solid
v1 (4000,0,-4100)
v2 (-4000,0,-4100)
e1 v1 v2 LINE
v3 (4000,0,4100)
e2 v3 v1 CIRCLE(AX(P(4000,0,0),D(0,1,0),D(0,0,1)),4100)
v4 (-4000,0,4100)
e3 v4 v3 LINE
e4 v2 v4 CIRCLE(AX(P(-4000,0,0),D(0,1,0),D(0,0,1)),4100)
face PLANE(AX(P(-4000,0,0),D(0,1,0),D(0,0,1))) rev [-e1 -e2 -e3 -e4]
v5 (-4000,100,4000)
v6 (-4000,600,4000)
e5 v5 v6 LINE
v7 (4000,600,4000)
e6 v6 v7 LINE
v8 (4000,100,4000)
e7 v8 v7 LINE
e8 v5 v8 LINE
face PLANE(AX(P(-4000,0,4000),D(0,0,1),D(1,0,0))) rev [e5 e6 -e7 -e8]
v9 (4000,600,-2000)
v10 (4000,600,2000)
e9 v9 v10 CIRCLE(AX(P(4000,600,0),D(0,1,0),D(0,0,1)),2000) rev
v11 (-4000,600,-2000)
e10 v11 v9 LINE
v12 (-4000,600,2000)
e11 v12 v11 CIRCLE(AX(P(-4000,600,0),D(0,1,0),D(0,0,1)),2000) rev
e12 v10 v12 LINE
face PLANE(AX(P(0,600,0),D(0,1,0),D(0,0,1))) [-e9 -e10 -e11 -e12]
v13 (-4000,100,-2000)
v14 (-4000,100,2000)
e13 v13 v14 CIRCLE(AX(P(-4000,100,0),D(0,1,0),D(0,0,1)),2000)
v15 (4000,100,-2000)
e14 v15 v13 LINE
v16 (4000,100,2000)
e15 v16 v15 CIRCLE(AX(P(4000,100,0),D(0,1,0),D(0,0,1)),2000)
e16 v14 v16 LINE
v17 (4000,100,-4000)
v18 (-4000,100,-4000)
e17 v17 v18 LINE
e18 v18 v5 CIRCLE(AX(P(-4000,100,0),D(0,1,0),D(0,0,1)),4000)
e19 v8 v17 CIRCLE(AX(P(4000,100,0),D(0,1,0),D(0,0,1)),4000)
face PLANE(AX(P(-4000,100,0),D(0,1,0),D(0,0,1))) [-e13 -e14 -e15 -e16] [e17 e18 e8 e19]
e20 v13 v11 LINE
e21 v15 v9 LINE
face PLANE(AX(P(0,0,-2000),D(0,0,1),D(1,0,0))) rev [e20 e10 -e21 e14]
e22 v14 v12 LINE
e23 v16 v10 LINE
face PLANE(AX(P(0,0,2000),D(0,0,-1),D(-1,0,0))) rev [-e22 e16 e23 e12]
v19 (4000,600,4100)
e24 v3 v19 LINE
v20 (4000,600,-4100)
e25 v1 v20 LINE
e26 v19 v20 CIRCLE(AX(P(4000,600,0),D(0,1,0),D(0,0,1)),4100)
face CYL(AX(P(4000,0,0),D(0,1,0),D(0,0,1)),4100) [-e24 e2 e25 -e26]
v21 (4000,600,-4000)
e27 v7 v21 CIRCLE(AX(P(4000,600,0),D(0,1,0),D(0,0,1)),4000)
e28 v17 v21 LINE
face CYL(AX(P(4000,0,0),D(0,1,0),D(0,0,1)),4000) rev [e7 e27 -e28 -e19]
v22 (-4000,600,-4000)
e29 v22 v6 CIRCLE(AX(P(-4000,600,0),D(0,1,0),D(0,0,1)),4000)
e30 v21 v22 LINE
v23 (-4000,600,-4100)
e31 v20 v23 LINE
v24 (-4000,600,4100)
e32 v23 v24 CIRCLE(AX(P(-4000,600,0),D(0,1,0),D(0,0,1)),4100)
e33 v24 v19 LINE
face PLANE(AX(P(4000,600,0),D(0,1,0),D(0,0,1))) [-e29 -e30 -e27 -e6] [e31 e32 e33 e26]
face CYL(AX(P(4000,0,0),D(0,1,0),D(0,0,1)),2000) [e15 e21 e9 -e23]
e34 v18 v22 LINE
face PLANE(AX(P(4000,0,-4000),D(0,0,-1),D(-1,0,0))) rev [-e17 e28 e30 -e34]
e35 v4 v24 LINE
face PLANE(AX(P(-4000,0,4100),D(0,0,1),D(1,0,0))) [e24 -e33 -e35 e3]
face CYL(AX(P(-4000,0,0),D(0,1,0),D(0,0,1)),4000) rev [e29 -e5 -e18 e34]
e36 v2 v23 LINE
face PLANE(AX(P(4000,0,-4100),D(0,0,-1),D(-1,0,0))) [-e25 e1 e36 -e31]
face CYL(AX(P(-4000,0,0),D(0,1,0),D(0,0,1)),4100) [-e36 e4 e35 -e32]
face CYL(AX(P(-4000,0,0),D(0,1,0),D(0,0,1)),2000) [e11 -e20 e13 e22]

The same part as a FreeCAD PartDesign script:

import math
import FreeCAD as App
import Part
import Sketcher

V = App.Vector
Q = App.Units.Quantity

doc = App.newDocument("Part")
body = doc.addObject("PartDesign::Body", "Body")

# Sketch on XZ plane
sketch1 = body.newObject("Sketcher::SketchObject", "Sketch")
sketch1.AttachmentSupport = (doc.getObject("XZ_Plane"), [""])
sketch1.MapMode = "FlatFace"
sketch1.addGeometry([
    Part.LineSegment(V(-4000, 4000, 0), V(4000, 4000, 0)),  # 0
    Part.ArcOfCircle(Part.Circle(V(4000, 0, 0), V(0, 0, 1), 4000), math.radians(-90), math.radians(90)),  # 1
    Part.LineSegment(V(4000, -4000, 0), V(-4000, -4000, 0)),  # 2
    Part.ArcOfCircle(Part.Circle(V(-4000, 0, 0), V(0, 0, 1), 4000), math.radians(90), math.radians(270)),  # 3
    Part.ArcOfCircle(Part.Circle(V(-4000, 0, 0), V(0, 0, 1), 2000), math.radians(90), math.radians(270)),  # 4
    Part.LineSegment(V(-4000, -2000, 0), V(4000, -2000, 0)),  # 5
    Part.ArcOfCircle(Part.Circle(V(4000, 0, 0), V(0, 0, 1), 2000), math.radians(-90), math.radians(90)),  # 6
    Part.LineSegment(V(4000, 2000, 0), V(-4000, 2000, 0)),  # 7
], False)
sketch1.addConstraint([
    Sketcher.Constraint("Coincident", 0, 2, 1, 2),
    Sketcher.Constraint("Coincident", 1, 1, 2, 1),
    Sketcher.Constraint("Coincident", 2, 2, 3, 2),
    Sketcher.Constraint("Coincident", 3, 1, 0, 1),
    Sketcher.Constraint("Coincident", 4, 2, 5, 1),
    Sketcher.Constraint("Coincident", 5, 2, 6, 1),
    Sketcher.Constraint("Coincident", 6, 2, 7, 1),
    Sketcher.Constraint("Coincident", 7, 2, 4, 1),
    Sketcher.Constraint("Horizontal", 0),
    Sketcher.Constraint("Horizontal", 2),
    Sketcher.Constraint("Horizontal", 5),
    Sketcher.Constraint("Horizontal", 7),
    Sketcher.Constraint("Coincident", 4, 3, 3, 3),
    Sketcher.Constraint("Symmetric", 1, 3, 3, 3, -1, 1),
    Sketcher.Constraint("Vertical", 6, 3, 0, 2),
    Sketcher.Constraint("Vertical", 4, 3, 2, 2),
    Sketcher.Constraint("Equal", 0, 2),
    Sketcher.Constraint("Equal", 2, 5),
    Sketcher.Constraint("Equal", 5, 7),
    Sketcher.Constraint("Radius", 1, Q("4000 mm")),
    Sketcher.Constraint("Radius", 4, Q("2000 mm")),
    Sketcher.Constraint("DistanceX", 0, 1, 0, 2, Q("8000 mm")),
    Sketcher.Constraint("DistanceX", -1, 1, 1, 3, Q("4000 mm")),
    Sketcher.Constraint("DistanceX", -1, 1, 6, 3, Q("4000 mm")),
    Sketcher.Constraint("DistanceX", -1, 1, 5, 2, Q("4000 mm")),
    Sketcher.Constraint("DistanceX", 7, 2, -1, 1, Q("4000 mm")),
])
pad1 = body.newObject("PartDesign::Pad", "Pad")
pad1.Profile = sketch1
pad1.Length = 100
pad1.Reversed = True

# Sketch on XZ plane
sketch2 = body.newObject("Sketcher::SketchObject", "Sketch001")
sketch2.AttachmentSupport = (doc.getObject("XZ_Plane"), [""])
sketch2.MapMode = "FlatFace"
sketch2.AttachmentOffset = App.Placement(V(0, 0, -100), App.Rotation())
sketch2.addGeometry([
    Part.LineSegment(V(4000, -4100, 0), V(-4000, -4100, 0)),  # 0
    Part.ArcOfCircle(Part.Circle(V(-4000, 0, 0), V(0, 0, 1), 4100), math.radians(90), math.radians(270)),  # 1
    Part.LineSegment(V(-4000, 4100, 0), V(4000, 4100, 0)),  # 2
    Part.ArcOfCircle(Part.Circle(V(4000, 0, 0), V(0, 0, 1), 4100), math.radians(-90), math.radians(90)),  # 3
    Part.LineSegment(V(4000, 4000, 0), V(-4000, 4000, 0)),  # 4
    Part.ArcOfCircle(Part.Circle(V(-4000, 0, 0), V(0, 0, 1), 4000), math.radians(90), math.radians(270)),  # 5
    Part.LineSegment(V(-4000, -4000, 0), V(4000, -4000, 0)),  # 6
    Part.ArcOfCircle(Part.Circle(V(4000, 0, 0), V(0, 0, 1), 4000), math.radians(-90), math.radians(90)),  # 7
], False)
sketch2.addConstraint([
    Sketcher.Constraint("Coincident", 0, 2, 1, 2),
    Sketcher.Constraint("Coincident", 1, 1, 2, 1),
    Sketcher.Constraint("Coincident", 2, 2, 3, 2),
    Sketcher.Constraint("Coincident", 3, 1, 0, 1),
    Sketcher.Constraint("Coincident", 4, 2, 5, 1),
    Sketcher.Constraint("Coincident", 5, 2, 6, 1),
    Sketcher.Constraint("Coincident", 6, 2, 7, 1),
    Sketcher.Constraint("Coincident", 7, 2, 4, 1),
    Sketcher.Constraint("Horizontal", 0),
    Sketcher.Constraint("Horizontal", 2),
    Sketcher.Constraint("Horizontal", 4),
    Sketcher.Constraint("Horizontal", 6),
    Sketcher.Constraint("Coincident", 5, 3, 1, 3),
    Sketcher.Constraint("Symmetric", 1, 3, 3, 3, -1, 1),
    Sketcher.Constraint("Vertical", 5, 3, 0, 2),
    Sketcher.Constraint("Vertical", 7, 3, 2, 2),
    Sketcher.Constraint("Equal", 0, 2),
    Sketcher.Constraint("Equal", 2, 4),
    Sketcher.Constraint("Equal", 4, 6),
    Sketcher.Constraint("Radius", 1, Q("4100 mm")),
    Sketcher.Constraint("Radius", 5, Q("4000 mm")),
    Sketcher.Constraint("DistanceX", 0, 2, 0, 1, Q("8000 mm")),
    Sketcher.Constraint("DistanceX", 1, 3, -1, 1, Q("4000 mm")),
    Sketcher.Constraint("DistanceX", -1, 1, 7, 3, Q("4000 mm")),
    Sketcher.Constraint("DistanceX", 4, 2, -1, 1, Q("4000 mm")),
    Sketcher.Constraint("DistanceX", -1, 1, 6, 2, Q("4000 mm")),
])
pad2 = body.newObject("PartDesign::Pad", "Pad001")
pad2.Profile = sketch2
pad2.Type = "TwoLengths"
pad2.Length = 500
pad2.Length2 = 100
pad2.Reversed = True

# Sketch on XZ plane
sketch3 = body.newObject("Sketcher::SketchObject", "Sketch002")
sketch3.AttachmentSupport = (doc.getObject("XZ_Plane"), [""])
sketch3.MapMode = "FlatFace"
sketch3.AttachmentOffset = App.Placement(V(0, 0, -100), App.Rotation())
sketch3.addGeometry([
    Part.LineSegment(V(4000, -2000, 0), V(-4000, -2000, 0)),
    Part.ArcOfCircle(Part.Circle(V(-4000, 0, 0), V(0, 0, 1), 2000), math.radians(90), math.radians(270)),
    Part.LineSegment(V(-4000, 2000, 0), V(4000, 2000, 0)),
    Part.ArcOfCircle(Part.Circle(V(4000, 0, 0), V(0, 0, 1), 2000), math.radians(-90), math.radians(90)),
], False)
sketch3.addConstraint([
    Sketcher.Constraint("Coincident", 0, 2, 1, 2),
    Sketcher.Constraint("Coincident", 1, 1, 2, 1),
    Sketcher.Constraint("Coincident", 2, 2, 3, 2),
    Sketcher.Constraint("Coincident", 3, 1, 0, 1),
    Sketcher.Constraint("Horizontal", 0),
    Sketcher.Constraint("Horizontal", 2),
    Sketcher.Constraint("Symmetric", 1, 3, 3, 3, -1, 1),
    Sketcher.Constraint("Vertical", 1, 3, 0, 2),
    Sketcher.Constraint("Vertical", 3, 3, 2, 2),
    Sketcher.Constraint("Equal", 0, 2),
    Sketcher.Constraint("Radius", 1, Q("2000 mm")),
    Sketcher.Constraint("DistanceX", 0, 2, 0, 1, Q("8000 mm")),
    Sketcher.Constraint("DistanceX", 1, 3, -1, 1, Q("4000 mm")),
])
pad3 = body.newObject("PartDesign::Pad", "Pad002")
pad3.Profile = sketch3
pad3.Type = "TwoLengths"
pad3.Length = 500
pad3.Length2 = 100
pad3.Reversed = True

doc.recompute()
